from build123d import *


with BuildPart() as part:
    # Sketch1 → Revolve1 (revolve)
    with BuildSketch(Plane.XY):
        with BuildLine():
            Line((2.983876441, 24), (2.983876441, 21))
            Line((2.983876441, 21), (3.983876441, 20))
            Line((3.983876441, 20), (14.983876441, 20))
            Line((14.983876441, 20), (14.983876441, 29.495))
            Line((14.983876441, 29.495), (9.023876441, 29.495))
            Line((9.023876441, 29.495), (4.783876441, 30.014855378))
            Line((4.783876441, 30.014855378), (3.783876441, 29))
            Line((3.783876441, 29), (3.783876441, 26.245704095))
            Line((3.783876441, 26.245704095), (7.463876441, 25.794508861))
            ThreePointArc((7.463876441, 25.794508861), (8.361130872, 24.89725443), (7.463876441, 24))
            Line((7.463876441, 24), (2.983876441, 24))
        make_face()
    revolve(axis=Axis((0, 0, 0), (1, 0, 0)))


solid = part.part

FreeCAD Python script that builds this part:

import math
import FreeCAD as App
import Part
import Sketcher
Q = App.Units.Quantity

doc = App.newDocument("Part")
body = doc.addObject("PartDesign::Body", "Body")

sketch1 = body.newObject("Sketcher::SketchObject", "Sketch")
sketch1.AttachmentSupport = (doc.getObject("XY_Plane"), [""])
sketch1.MapMode = "FlatFace"
sketch1.addGeometry(Part.LineSegment(App.Vector(3, 24, 0), App.Vector(3, 21, 0)), False)
sketch1.addGeometry(Part.LineSegment(App.Vector(3, 21, 0), App.Vector(4, 20, 0)), False)
sketch1.addGeometry(Part.LineSegment(App.Vector(4, 20, 0), App.Vector(15, 20, 0)), False)
sketch1.addGeometry(Part.LineSegment(App.Vector(15, 20, 0), App.Vector(15, 29.5, 0)), False)
sketch1.addGeometry(Part.LineSegment(App.Vector(15, 29.5, 0), App.Vector(9, 29.5, 0)), False)
sketch1.addGeometry(Part.LineSegment(App.Vector(9, 29.5, 0), App.Vector(4.8, 30, 0)), False)
sketch1.addGeometry(Part.LineSegment(App.Vector(4.8, 30, 0), App.Vector(3.8, 29, 0)), False)
sketch1.addGeometry(Part.LineSegment(App.Vector(3.8, 29, 0), App.Vector(3.8, 26.2, 0)), False)
sketch1.addGeometry(Part.LineSegment(App.Vector(3.8, 26.2, 0), App.Vector(7.5, 25.8, 0)), False)
sketch1.addGeometry(Part.ArcOfCircle(Part.Circle(App.Vector(7.5, 24.9, 0), App.Vector(0, 0, 1), 0.9), math.radians(-90), math.radians(90)), False)
sketch1.addGeometry(Part.LineSegment(App.Vector(7.5, 24, 0), App.Vector(3, 24, 0)), False)
sketch1.addConstraint(Sketcher.Constraint("Coincident", 0, 2, 1, 1))
sketch1.addConstraint(Sketcher.Constraint("Coincident", 1, 2, 2, 1))
sketch1.addConstraint(Sketcher.Constraint("Coincident", 2, 2, 3, 1))
sketch1.addConstraint(Sketcher.Constraint("Coincident", 3, 2, 4, 1))
sketch1.addConstraint(Sketcher.Constraint("Coincident", 4, 2, 5, 1))
sketch1.addConstraint(Sketcher.Constraint("Coincident", 5, 2, 6, 1))
sketch1.addConstraint(Sketcher.Constraint("Coincident", 6, 2, 7, 1))
sketch1.addConstraint(Sketcher.Constraint("Coincident", 7, 2, 8, 1))
sketch1.addConstraint(Sketcher.Constraint("Coincident", 8, 2, 9, 2))
sketch1.addConstraint(Sketcher.Constraint("Tangent", 9, 1, 10, 1))
sketch1.addConstraint(Sketcher.Constraint("Coincident", 10, 2, 0, 1))
sketch1.addConstraint(Sketcher.Constraint("Vertical", 0))
sketch1.addConstraint(Sketcher.Constraint("Horizontal", 2))
sketch1.addConstraint(Sketcher.Constraint("Vertical", 3))
sketch1.addConstraint(Sketcher.Constraint("Horizontal", 4))
sketch1.addConstraint(Sketcher.Constraint("Vertical", 7))
sketch1.addConstraint(Sketcher.Constraint("Horizontal", 10))
sketch1.addConstraint(Sketcher.Constraint("Parallel", 5, 8))
sketch1.addConstraint(Sketcher.Constraint("Vertical", 9, 3, 8, 2))
sketch1.addConstraint(Sketcher.Constraint("DistanceX", 2, 1, 2, 2, 11.0))
sketch1.addConstraint(Sketcher.Constraint("DistanceY", 0, 2, 0, 1, 3.0))
sketch1.addConstraint(Sketcher.Constraint("Angle", 1, Q("-45 deg")))
sketch1.addConstraint(Sketcher.Constraint("DistanceY", -1, 1, 0, 2, 21.0))
sketch1.addConstraint(Sketcher.Constraint("DistanceY", -1, 1, 1, 2, 20.0))
sketch1.addConstraint(Sketcher.Constraint("DistanceY", -1, 1, 6, 2, 29.0))
sketch1.addConstraint(Sketcher.Constraint("DistanceX", 6, 2, 5, 2, 1.0))
sketch1.addConstraint(Sketcher.Constraint("DistanceX", 4, 2, 4, 1, 5.96))
sketch1.addConstraint(Sketcher.Constraint("DistanceX", 10, 2, 10, 1, 4.48))
sketch1.addConstraint(Sketcher.Constraint("Angle", 5, Q("173.01 deg")))
sketch1.addConstraint(Sketcher.Constraint("DistanceX", 0, 2, 5, 2, 1.8))
sketch1.addConstraint(Sketcher.Constraint("DistanceY", 3, 1, 3, 2, 9.495))
sketch1.addConstraint(Sketcher.Constraint("Radius", 9, 0.897254))
sketch1.addConstraint(Sketcher.Constraint("DistanceX", -1, 1, 9, 3, 7.463876))
revolution = body.newObject("PartDesign::Revolution", "Revolution")
revolution.Profile = sketch1
revolution.ReferenceAxis = (sketch1, ["H_Axis"])
revolution.Angle = 360

doc.recompute()
